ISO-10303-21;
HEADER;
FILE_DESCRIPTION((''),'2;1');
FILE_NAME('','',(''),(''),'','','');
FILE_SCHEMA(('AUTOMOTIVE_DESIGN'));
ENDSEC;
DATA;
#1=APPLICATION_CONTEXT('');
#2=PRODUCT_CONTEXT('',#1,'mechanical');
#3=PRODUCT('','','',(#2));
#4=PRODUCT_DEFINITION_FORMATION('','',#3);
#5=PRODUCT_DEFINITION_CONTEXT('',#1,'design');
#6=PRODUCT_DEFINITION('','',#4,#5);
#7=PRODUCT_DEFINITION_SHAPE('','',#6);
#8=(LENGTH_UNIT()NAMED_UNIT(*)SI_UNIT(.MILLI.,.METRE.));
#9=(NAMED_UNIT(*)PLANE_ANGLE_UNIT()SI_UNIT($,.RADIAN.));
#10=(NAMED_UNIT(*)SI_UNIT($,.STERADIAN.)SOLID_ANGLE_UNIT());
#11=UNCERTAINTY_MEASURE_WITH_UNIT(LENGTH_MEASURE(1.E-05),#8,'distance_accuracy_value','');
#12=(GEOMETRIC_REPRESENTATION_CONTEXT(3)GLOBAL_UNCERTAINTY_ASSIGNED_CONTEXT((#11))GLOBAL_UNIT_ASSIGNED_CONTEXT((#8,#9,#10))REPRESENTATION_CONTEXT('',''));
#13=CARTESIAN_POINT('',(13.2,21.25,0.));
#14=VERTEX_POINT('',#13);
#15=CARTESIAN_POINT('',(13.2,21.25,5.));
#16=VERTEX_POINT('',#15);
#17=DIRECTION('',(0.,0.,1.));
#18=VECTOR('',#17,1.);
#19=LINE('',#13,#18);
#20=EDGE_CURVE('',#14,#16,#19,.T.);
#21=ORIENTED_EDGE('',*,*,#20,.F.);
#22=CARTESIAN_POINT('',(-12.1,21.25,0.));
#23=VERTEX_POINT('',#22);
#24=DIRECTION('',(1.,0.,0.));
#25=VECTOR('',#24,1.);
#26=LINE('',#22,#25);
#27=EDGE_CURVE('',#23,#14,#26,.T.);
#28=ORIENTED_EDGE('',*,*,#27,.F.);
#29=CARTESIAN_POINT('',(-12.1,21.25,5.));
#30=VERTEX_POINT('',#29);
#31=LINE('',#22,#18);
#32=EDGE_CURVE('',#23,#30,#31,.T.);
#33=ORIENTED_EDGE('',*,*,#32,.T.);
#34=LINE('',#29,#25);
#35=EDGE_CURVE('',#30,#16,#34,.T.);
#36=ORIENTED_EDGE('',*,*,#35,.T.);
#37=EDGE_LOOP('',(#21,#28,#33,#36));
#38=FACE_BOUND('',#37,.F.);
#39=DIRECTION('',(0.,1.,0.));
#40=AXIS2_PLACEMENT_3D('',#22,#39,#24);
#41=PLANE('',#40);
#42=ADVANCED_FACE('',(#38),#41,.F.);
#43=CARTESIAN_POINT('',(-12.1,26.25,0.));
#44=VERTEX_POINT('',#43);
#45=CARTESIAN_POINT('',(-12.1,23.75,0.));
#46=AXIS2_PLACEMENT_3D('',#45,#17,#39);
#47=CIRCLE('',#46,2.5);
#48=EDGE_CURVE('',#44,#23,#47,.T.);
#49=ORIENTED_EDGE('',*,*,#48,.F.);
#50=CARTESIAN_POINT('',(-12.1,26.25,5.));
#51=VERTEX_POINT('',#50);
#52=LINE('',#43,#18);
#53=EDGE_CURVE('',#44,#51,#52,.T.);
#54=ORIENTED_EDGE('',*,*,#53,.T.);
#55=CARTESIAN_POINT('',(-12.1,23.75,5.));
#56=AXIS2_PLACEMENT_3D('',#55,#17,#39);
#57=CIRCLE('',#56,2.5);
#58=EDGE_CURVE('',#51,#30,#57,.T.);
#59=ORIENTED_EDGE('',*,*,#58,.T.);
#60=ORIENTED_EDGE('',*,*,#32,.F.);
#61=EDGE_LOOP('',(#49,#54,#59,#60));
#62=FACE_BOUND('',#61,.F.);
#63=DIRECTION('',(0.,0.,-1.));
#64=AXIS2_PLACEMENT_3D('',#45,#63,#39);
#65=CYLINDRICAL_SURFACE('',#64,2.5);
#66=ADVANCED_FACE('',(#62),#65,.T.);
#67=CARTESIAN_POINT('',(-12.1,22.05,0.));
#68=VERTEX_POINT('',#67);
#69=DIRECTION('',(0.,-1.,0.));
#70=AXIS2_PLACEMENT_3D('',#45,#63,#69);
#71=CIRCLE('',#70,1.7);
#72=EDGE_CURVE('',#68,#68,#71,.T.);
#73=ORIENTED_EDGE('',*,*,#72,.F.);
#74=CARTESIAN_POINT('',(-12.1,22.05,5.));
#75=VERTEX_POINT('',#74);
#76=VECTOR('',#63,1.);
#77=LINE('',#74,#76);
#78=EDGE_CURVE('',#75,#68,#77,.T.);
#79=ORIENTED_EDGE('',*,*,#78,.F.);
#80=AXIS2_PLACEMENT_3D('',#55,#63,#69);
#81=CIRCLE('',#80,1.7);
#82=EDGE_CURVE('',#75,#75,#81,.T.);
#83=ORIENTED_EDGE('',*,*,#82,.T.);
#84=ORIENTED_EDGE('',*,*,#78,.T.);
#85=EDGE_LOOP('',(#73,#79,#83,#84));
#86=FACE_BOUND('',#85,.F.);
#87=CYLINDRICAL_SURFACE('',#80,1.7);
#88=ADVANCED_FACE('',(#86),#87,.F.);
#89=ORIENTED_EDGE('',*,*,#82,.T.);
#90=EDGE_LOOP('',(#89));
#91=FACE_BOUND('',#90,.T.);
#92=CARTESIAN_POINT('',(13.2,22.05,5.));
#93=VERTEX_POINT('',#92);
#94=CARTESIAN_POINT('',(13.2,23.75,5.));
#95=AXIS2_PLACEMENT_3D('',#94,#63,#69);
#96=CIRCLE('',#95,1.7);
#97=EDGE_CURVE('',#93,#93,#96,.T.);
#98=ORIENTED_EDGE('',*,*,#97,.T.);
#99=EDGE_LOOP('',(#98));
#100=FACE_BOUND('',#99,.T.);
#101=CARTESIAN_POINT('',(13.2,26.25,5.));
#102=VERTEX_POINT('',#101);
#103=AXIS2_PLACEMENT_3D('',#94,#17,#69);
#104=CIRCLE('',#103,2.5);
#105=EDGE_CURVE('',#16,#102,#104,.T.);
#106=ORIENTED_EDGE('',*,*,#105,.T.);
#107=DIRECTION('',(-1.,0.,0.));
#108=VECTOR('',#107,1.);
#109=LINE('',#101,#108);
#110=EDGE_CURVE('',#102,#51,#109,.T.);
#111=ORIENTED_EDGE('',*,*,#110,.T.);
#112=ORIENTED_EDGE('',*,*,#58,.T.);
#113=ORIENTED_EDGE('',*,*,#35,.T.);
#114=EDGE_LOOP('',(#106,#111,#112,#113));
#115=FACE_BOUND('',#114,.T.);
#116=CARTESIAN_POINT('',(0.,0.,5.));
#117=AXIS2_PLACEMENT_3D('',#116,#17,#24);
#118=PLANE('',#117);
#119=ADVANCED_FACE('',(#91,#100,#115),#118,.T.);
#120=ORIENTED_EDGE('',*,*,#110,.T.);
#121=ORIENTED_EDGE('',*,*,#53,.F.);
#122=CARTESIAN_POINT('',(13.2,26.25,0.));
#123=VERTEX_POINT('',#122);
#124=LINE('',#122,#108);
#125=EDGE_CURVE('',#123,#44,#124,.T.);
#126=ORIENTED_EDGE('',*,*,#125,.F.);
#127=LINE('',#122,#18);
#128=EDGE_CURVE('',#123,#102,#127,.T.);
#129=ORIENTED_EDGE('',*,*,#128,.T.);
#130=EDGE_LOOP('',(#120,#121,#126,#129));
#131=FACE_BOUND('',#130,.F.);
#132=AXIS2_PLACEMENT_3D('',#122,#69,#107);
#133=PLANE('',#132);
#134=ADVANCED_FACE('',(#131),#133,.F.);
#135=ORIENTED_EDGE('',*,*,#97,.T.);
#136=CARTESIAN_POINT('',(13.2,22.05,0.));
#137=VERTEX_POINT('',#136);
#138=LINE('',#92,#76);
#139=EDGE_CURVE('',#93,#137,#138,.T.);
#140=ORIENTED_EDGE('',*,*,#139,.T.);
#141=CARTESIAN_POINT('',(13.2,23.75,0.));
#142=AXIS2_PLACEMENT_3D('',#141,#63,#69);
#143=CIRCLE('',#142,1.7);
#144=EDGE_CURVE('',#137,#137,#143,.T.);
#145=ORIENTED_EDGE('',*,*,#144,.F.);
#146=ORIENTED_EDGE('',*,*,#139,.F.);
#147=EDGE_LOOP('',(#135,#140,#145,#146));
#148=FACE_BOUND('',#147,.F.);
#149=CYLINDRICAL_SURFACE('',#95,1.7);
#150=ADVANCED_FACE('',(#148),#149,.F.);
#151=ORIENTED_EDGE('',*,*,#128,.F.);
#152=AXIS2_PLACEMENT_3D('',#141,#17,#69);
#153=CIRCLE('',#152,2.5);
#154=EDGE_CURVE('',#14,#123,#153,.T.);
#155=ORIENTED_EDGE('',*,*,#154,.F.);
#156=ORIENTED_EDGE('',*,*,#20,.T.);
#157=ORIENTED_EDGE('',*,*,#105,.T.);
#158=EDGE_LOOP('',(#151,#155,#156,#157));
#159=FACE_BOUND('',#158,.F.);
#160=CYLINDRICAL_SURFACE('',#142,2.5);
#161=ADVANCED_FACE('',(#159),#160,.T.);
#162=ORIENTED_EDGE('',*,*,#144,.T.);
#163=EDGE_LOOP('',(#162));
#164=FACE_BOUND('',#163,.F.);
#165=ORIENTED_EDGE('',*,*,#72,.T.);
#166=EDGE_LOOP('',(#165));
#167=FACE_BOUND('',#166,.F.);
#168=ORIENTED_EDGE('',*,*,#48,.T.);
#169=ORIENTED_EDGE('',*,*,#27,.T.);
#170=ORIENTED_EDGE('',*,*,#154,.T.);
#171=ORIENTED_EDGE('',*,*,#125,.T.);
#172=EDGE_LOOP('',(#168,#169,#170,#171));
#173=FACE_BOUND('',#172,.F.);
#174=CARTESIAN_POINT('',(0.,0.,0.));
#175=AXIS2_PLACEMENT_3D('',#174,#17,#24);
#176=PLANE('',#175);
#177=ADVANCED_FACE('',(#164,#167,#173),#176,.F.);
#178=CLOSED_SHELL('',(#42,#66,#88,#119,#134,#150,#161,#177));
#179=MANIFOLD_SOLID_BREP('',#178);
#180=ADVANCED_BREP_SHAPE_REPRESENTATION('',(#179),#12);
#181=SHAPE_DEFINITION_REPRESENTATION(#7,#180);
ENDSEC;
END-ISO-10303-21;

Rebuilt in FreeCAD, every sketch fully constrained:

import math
import FreeCAD as App
import Part
import Sketcher
from FreeCAD import Vector

doc = App.newDocument("Part")
body = doc.addObject("PartDesign::Body", "Body")

# Sketch on XY plane
sketch1 = body.newObject("Sketcher::SketchObject", "Sketch")
sketch1.AttachmentSupport = (doc.getObject("XY_Plane"), [""])
sketch1.MapMode = "FlatFace"
sketch1.addGeometry(Part.ArcOfCircle(Part.Circle(Vector(-12.1, 23.8, 0), Vector(0, 0, 1), 2.5), math.radians(90), math.radians(270)), False)
sketch1.addGeometry(Part.LineSegment(Vector(-12.1, 21.2, 0), Vector(13.2, 21.2, 0)), False)
sketch1.addGeometry(Part.ArcOfCircle(Part.Circle(Vector(13.2, 23.8, 0), Vector(0, 0, 1), 2.5), math.radians(-90), math.radians(90)), False)
sketch1.addGeometry(Part.LineSegment(Vector(13.2, 26.2, 0), Vector(-12.1, 26.2, 0)), False)
sketch1.addConstraint(Sketcher.Constraint("Tangent", 0, 2, 1, 1))
sketch1.addConstraint(Sketcher.Constraint("Tangent", 1, 2, 2, 1))
sketch1.addConstraint(Sketcher.Constraint("Tangent", 2, 2, 3, 1))
sketch1.addConstraint(Sketcher.Constraint("Tangent", 3, 2, 0, 1))
sketch1.addConstraint(Sketcher.Constraint("Horizontal", 1))
sketch1.addConstraint(Sketcher.Constraint("Horizontal", 3))
sketch1.addConstraint(Sketcher.Constraint("Radius", 0, 2.5))
sketch1.addConstraint(Sketcher.Constraint("DistanceX", 1, 1, 1, 2, 25.3))
sketch1.addConstraint(Sketcher.Constraint("DistanceX", 0, 3, -1, 1, 12.1))
sketch1.addConstraint(Sketcher.Constraint("DistanceY", -1, 1, 0, 3, 23.75))
pad1 = body.newObject("PartDesign::Pad", "Pad")
pad1.Profile = sketch1
pad1.Length = 5

# Sketch on XY plane
sketch2 = body.newObject("Sketcher::SketchObject", "Sketch001")
sketch2.AttachmentSupport = (doc.getObject("XY_Plane"), [""])
sketch2.MapMode = "FlatFace"
sketch2.AttachmentOffset = App.Placement(Vector(0, 0, 5), App.Rotation())
sketch2.addGeometry(Part.Circle(Vector(13.2, 23.8, 0), Vector(0, 0, 1), 1.7), False)
sketch2.addGeometry(Part.Circle(Vector(-12.1, 23.8, 0), Vector(0, 0, 1), 1.7), False)
sketch2.addConstraint(Sketcher.Constraint("Equal", 0, 1))
sketch2.addConstraint(Sketcher.Constraint("Horizontal", 0, 3, 1, 3))
sketch2.addConstraint(Sketcher.Constraint("Diameter", 0, 3.4))
sketch2.addConstraint(Sketcher.Constraint("DistanceX", -1, 1, 0, 3, 13.2))
sketch2.addConstraint(Sketcher.Constraint("DistanceX", 1, 3, -1, 1, 12.1))
sketch2.addConstraint(Sketcher.Constraint("DistanceY", -1, 1, 0, 3, 23.75))
doc.recompute()
hole = body.newObject("PartDesign::Hole", "Hole")
hole.Profile = sketch2
hole.ThreadType = "None"
hole.Diameter = 3.4
hole.DepthType = "Dimension"
hole.Depth = 7
hole.DrillPoint = "Flat"

doc.recompute()
